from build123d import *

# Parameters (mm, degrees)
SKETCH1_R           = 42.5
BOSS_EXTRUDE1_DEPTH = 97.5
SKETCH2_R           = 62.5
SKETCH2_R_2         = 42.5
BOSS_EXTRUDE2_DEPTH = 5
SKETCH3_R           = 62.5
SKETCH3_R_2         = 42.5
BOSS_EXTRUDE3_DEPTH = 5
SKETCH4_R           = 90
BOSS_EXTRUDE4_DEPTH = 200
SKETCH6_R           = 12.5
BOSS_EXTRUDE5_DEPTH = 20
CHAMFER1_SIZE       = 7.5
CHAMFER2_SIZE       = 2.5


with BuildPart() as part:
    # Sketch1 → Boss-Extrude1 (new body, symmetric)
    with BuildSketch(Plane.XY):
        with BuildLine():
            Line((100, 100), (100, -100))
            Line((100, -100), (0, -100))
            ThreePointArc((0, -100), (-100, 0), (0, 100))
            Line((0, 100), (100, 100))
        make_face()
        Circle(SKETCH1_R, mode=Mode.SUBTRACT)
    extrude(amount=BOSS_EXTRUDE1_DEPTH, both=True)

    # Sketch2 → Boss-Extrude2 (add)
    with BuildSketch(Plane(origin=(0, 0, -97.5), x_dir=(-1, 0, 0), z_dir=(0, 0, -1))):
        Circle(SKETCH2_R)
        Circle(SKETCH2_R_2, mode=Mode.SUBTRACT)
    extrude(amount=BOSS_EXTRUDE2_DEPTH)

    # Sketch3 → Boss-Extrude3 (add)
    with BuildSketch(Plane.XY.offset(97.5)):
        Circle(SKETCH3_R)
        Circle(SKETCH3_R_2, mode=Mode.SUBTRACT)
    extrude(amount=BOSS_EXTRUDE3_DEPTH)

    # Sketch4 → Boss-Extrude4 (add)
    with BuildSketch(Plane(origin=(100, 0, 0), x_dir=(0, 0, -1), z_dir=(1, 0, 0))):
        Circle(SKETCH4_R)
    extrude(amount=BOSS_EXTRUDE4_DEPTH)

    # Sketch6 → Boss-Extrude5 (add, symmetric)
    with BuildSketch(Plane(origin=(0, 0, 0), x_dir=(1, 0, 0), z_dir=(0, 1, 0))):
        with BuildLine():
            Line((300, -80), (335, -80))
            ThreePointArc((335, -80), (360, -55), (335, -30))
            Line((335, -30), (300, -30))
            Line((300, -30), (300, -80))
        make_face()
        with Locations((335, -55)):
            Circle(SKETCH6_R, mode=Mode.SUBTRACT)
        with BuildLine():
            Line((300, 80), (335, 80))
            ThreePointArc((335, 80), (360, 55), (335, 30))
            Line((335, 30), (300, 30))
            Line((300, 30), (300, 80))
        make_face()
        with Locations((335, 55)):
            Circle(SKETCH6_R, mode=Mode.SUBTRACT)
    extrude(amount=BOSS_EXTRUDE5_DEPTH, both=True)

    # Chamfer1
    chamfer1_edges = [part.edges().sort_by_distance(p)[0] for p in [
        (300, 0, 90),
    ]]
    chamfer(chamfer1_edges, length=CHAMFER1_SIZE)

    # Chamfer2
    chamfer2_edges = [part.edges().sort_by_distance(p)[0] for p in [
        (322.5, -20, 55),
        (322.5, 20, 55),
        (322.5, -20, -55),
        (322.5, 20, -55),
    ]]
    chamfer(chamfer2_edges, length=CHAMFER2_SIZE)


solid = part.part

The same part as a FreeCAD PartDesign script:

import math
import FreeCAD as App
import Part
import Sketcher

V = App.Vector


def edges_at(feature, points):
    """Names of the edges that pass closest to the given points."""
    edges = feature.Shape.Edges
    near = lambda p: min(range(len(edges)), key=lambda i: edges[i].distToShape(Part.Vertex(*p))[0])
    return sorted({f"Edge{near(p) + 1}" for p in points})

doc = App.newDocument("Part")
body = doc.addObject("PartDesign::Body", "Body")

sketch1 = body.newObject("Sketcher::SketchObject", "Sketch")
sketch1.AttachmentSupport = (doc.getObject("XY_Plane"), [""])
sketch1.MapMode = "FlatFace"
sketch1.addGeometry([
    Part.LineSegment(V(100, -100, 0), V(100, 100, 0)),
    Part.LineSegment(V(100, 100, 0), V(0, 100, 0)),
    Part.ArcOfCircle(Part.Circle(V(0, 0, 0), V(0, 0, 1), 100), math.radians(90), math.radians(270)),
    Part.LineSegment(V(0, -100, 0), V(100, -100, 0)),
    Part.Circle(V(0, 0, 0), V(0, 0, 1), 42),
], False)
sketch1.addConstraint([
    Sketcher.Constraint("Coincident", 0, 2, 1, 1),
    Sketcher.Constraint("Tangent", 1, 2, 2, 1),
    Sketcher.Constraint("Tangent", 2, 2, 3, 1),
    Sketcher.Constraint("Coincident", 3, 2, 0, 1),
    Sketcher.Constraint("Vertical", 0),
    Sketcher.Constraint("Horizontal", 1),
    Sketcher.Constraint("Horizontal", 3),
    Sketcher.Constraint("Coincident", 2, 3, -1, 1),
    Sketcher.Constraint("Coincident", 4, 3, -1, 1),
    Sketcher.Constraint("Diameter", 4, 85.0),
    Sketcher.Constraint("Radius", 2, 100.0),
    Sketcher.Constraint("DistanceX", 1, 2, 1, 1, 100.0),
])
pad1 = body.newObject("PartDesign::Pad", "Pad")
pad1.Profile = sketch1
pad1.Length = 195
pad1.Midplane = True

sketch2 = body.newObject("Sketcher::SketchObject", "Sketch001")
sketch2.AttachmentSupport = (doc.getObject("XY_Plane"), [""])
sketch2.MapMode = "FlatFace"
sketch2.AttachmentOffset = App.Placement(V(0, 0, -97.5), App.Rotation())
sketch2.addGeometry([
    Part.Circle(V(0, 0, 0), V(0, 0, 1), 62),
    Part.Circle(V(0, 0, 0), V(0, 0, 1), 42),
], False)
sketch2.addConstraint([
    Sketcher.Constraint("Coincident", 0, 3, -1, 1),
    Sketcher.Constraint("Coincident", 1, 3, -1, 1),
    Sketcher.Constraint("Diameter", 0, 125.0),
    Sketcher.Constraint("Diameter", 1, 85.0),
])
pad2 = body.newObject("PartDesign::Pad", "Pad001")
pad2.Profile = sketch2
pad2.Length = 5
pad2.Reversed = True

sketch3 = body.newObject("Sketcher::SketchObject", "Sketch002")
sketch3.AttachmentSupport = (doc.getObject("XY_Plane"), [""])
sketch3.MapMode = "FlatFace"
sketch3.AttachmentOffset = App.Placement(V(0, 0, 97.5), App.Rotation())
sketch3.addGeometry([
    Part.Circle(V(0, 0, 0), V(0, 0, 1), 62),
    Part.Circle(V(0, 0, 0), V(0, 0, 1), 42),
], False)
sketch3.addConstraint([
    Sketcher.Constraint("Coincident", 0, 3, -1, 1),
    Sketcher.Constraint("Coincident", 1, 3, -1, 1),
    Sketcher.Constraint("Diameter", 0, 125.0),
    Sketcher.Constraint("Diameter", 1, 85.0),
])
pad3 = body.newObject("PartDesign::Pad", "Pad002")
pad3.Profile = sketch3
pad3.Length = 5

sketch4 = body.newObject("Sketcher::SketchObject", "Sketch003")
sketch4.AttachmentSupport = (doc.getObject("YZ_Plane"), [""])
sketch4.MapMode = "FlatFace"
sketch4.AttachmentOffset = App.Placement(V(0, 0, 100), App.Rotation())
sketch4.addGeometry(Part.Circle(V(0, 0, 0), V(0, 0, 1), 90), False)
sketch4.addConstraint([
    Sketcher.Constraint("Coincident", 0, 3, -1, 1),
    Sketcher.Constraint("Diameter", 0, 180.0),
])
pad4 = body.newObject("PartDesign::Pad", "Pad003")
pad4.Profile = sketch4
pad4.Length = 200

sketch5 = body.newObject("Sketcher::SketchObject", "Sketch004")
sketch5.AttachmentSupport = (doc.getObject("XZ_Plane"), [""])
sketch5.MapMode = "FlatFace"
sketch5.addGeometry([
    Part.LineSegment(V(300, 80, 0), V(335, 80, 0)),
    Part.ArcOfCircle(Part.Circle(V(335, 55, 0), V(0, 0, 1), 25), math.radians(-90), math.radians(90)),
    Part.LineSegment(V(335, 30, 0), V(300, 30, 0)),
    Part.LineSegment(V(300, 30, 0), V(300, 80, 0)),
    Part.Circle(V(335, 55, 0), V(0, 0, 1), 12),
    Part.LineSegment(V(335, -80, 0), V(300, -80, 0)),
    Part.LineSegment(V(300, -80, 0), V(300, -30, 0)),
    Part.LineSegment(V(300, -30, 0), V(335, -30, 0)),
    Part.ArcOfCircle(Part.Circle(V(335, -55, 0), V(0, 0, 1), 25), math.radians(-90), math.radians(90)),
    Part.Circle(V(335, -55, 0), V(0, 0, 1), 12),
], False)
sketch5.addConstraint([
    Sketcher.Constraint("Tangent", 0, 2, 1, 2),
    Sketcher.Constraint("Tangent", 1, 1, 2, 1),
    Sketcher.Constraint("Coincident", 2, 2, 3, 1),
    Sketcher.Constraint("Coincident", 3, 2, 0, 1),
    Sketcher.Constraint("Coincident", 5, 2, 6, 1),
    Sketcher.Constraint("Coincident", 6, 2, 7, 1),
    Sketcher.Constraint("Tangent", 7, 2, 8, 2),
    Sketcher.Constraint("Tangent", 8, 1, 5, 1),
    Sketcher.Constraint("Horizontal", 0),
    Sketcher.Constraint("Horizontal", 2),
    Sketcher.Constraint("Vertical", 3),
    Sketcher.Constraint("Horizontal", 5),
    Sketcher.Constraint("Vertical", 6),
    Sketcher.Constraint("Horizontal", 7),
    Sketcher.Constraint("Coincident", 4, 3, 1, 3),
    Sketcher.Constraint("Coincident", 9, 3, 8, 3),
    Sketcher.Constraint("Equal", 1, 8),
    Sketcher.Constraint("Equal", 4, 9),
    Sketcher.Constraint("Symmetric", 1, 3, 8, 3, -1),
    Sketcher.Constraint("Vertical", 3, 2, 5, 2),
    Sketcher.Constraint("Diameter", 4, 25.0),
    Sketcher.Constraint("Radius", 1, 25.0),
    Sketcher.Constraint("DistanceX", 0, 1, 0, 2, 35.0),
    Sketcher.Constraint("DistanceX", -1, 1, 1, 3, 335.0),
    Sketcher.Constraint("DistanceY", -1, 1, 1, 3, 55.0),
])
pad5 = body.newObject("PartDesign::Pad", "Pad004")
pad5.Profile = sketch5
pad5.Length = 40
pad5.Midplane = True
doc.recompute()

chamfer = body.newObject("PartDesign::Chamfer", "Chamfer")
chamfer.Base = (pad5, edges_at(pad5, [(300, 0, 90)]))
chamfer.Size = 7.5
doc.recompute()

chamfer2 = body.newObject("PartDesign::Chamfer", "Chamfer001")
chamfer2.Base = (chamfer, edges_at(chamfer, [
    (322.5, -20, 55),
    (322.5, 20, 55),
    (322.5, -20, -55),
    (322.5, 20, -55),
]))
chamfer2.Size = 2.5

doc.recompute()
